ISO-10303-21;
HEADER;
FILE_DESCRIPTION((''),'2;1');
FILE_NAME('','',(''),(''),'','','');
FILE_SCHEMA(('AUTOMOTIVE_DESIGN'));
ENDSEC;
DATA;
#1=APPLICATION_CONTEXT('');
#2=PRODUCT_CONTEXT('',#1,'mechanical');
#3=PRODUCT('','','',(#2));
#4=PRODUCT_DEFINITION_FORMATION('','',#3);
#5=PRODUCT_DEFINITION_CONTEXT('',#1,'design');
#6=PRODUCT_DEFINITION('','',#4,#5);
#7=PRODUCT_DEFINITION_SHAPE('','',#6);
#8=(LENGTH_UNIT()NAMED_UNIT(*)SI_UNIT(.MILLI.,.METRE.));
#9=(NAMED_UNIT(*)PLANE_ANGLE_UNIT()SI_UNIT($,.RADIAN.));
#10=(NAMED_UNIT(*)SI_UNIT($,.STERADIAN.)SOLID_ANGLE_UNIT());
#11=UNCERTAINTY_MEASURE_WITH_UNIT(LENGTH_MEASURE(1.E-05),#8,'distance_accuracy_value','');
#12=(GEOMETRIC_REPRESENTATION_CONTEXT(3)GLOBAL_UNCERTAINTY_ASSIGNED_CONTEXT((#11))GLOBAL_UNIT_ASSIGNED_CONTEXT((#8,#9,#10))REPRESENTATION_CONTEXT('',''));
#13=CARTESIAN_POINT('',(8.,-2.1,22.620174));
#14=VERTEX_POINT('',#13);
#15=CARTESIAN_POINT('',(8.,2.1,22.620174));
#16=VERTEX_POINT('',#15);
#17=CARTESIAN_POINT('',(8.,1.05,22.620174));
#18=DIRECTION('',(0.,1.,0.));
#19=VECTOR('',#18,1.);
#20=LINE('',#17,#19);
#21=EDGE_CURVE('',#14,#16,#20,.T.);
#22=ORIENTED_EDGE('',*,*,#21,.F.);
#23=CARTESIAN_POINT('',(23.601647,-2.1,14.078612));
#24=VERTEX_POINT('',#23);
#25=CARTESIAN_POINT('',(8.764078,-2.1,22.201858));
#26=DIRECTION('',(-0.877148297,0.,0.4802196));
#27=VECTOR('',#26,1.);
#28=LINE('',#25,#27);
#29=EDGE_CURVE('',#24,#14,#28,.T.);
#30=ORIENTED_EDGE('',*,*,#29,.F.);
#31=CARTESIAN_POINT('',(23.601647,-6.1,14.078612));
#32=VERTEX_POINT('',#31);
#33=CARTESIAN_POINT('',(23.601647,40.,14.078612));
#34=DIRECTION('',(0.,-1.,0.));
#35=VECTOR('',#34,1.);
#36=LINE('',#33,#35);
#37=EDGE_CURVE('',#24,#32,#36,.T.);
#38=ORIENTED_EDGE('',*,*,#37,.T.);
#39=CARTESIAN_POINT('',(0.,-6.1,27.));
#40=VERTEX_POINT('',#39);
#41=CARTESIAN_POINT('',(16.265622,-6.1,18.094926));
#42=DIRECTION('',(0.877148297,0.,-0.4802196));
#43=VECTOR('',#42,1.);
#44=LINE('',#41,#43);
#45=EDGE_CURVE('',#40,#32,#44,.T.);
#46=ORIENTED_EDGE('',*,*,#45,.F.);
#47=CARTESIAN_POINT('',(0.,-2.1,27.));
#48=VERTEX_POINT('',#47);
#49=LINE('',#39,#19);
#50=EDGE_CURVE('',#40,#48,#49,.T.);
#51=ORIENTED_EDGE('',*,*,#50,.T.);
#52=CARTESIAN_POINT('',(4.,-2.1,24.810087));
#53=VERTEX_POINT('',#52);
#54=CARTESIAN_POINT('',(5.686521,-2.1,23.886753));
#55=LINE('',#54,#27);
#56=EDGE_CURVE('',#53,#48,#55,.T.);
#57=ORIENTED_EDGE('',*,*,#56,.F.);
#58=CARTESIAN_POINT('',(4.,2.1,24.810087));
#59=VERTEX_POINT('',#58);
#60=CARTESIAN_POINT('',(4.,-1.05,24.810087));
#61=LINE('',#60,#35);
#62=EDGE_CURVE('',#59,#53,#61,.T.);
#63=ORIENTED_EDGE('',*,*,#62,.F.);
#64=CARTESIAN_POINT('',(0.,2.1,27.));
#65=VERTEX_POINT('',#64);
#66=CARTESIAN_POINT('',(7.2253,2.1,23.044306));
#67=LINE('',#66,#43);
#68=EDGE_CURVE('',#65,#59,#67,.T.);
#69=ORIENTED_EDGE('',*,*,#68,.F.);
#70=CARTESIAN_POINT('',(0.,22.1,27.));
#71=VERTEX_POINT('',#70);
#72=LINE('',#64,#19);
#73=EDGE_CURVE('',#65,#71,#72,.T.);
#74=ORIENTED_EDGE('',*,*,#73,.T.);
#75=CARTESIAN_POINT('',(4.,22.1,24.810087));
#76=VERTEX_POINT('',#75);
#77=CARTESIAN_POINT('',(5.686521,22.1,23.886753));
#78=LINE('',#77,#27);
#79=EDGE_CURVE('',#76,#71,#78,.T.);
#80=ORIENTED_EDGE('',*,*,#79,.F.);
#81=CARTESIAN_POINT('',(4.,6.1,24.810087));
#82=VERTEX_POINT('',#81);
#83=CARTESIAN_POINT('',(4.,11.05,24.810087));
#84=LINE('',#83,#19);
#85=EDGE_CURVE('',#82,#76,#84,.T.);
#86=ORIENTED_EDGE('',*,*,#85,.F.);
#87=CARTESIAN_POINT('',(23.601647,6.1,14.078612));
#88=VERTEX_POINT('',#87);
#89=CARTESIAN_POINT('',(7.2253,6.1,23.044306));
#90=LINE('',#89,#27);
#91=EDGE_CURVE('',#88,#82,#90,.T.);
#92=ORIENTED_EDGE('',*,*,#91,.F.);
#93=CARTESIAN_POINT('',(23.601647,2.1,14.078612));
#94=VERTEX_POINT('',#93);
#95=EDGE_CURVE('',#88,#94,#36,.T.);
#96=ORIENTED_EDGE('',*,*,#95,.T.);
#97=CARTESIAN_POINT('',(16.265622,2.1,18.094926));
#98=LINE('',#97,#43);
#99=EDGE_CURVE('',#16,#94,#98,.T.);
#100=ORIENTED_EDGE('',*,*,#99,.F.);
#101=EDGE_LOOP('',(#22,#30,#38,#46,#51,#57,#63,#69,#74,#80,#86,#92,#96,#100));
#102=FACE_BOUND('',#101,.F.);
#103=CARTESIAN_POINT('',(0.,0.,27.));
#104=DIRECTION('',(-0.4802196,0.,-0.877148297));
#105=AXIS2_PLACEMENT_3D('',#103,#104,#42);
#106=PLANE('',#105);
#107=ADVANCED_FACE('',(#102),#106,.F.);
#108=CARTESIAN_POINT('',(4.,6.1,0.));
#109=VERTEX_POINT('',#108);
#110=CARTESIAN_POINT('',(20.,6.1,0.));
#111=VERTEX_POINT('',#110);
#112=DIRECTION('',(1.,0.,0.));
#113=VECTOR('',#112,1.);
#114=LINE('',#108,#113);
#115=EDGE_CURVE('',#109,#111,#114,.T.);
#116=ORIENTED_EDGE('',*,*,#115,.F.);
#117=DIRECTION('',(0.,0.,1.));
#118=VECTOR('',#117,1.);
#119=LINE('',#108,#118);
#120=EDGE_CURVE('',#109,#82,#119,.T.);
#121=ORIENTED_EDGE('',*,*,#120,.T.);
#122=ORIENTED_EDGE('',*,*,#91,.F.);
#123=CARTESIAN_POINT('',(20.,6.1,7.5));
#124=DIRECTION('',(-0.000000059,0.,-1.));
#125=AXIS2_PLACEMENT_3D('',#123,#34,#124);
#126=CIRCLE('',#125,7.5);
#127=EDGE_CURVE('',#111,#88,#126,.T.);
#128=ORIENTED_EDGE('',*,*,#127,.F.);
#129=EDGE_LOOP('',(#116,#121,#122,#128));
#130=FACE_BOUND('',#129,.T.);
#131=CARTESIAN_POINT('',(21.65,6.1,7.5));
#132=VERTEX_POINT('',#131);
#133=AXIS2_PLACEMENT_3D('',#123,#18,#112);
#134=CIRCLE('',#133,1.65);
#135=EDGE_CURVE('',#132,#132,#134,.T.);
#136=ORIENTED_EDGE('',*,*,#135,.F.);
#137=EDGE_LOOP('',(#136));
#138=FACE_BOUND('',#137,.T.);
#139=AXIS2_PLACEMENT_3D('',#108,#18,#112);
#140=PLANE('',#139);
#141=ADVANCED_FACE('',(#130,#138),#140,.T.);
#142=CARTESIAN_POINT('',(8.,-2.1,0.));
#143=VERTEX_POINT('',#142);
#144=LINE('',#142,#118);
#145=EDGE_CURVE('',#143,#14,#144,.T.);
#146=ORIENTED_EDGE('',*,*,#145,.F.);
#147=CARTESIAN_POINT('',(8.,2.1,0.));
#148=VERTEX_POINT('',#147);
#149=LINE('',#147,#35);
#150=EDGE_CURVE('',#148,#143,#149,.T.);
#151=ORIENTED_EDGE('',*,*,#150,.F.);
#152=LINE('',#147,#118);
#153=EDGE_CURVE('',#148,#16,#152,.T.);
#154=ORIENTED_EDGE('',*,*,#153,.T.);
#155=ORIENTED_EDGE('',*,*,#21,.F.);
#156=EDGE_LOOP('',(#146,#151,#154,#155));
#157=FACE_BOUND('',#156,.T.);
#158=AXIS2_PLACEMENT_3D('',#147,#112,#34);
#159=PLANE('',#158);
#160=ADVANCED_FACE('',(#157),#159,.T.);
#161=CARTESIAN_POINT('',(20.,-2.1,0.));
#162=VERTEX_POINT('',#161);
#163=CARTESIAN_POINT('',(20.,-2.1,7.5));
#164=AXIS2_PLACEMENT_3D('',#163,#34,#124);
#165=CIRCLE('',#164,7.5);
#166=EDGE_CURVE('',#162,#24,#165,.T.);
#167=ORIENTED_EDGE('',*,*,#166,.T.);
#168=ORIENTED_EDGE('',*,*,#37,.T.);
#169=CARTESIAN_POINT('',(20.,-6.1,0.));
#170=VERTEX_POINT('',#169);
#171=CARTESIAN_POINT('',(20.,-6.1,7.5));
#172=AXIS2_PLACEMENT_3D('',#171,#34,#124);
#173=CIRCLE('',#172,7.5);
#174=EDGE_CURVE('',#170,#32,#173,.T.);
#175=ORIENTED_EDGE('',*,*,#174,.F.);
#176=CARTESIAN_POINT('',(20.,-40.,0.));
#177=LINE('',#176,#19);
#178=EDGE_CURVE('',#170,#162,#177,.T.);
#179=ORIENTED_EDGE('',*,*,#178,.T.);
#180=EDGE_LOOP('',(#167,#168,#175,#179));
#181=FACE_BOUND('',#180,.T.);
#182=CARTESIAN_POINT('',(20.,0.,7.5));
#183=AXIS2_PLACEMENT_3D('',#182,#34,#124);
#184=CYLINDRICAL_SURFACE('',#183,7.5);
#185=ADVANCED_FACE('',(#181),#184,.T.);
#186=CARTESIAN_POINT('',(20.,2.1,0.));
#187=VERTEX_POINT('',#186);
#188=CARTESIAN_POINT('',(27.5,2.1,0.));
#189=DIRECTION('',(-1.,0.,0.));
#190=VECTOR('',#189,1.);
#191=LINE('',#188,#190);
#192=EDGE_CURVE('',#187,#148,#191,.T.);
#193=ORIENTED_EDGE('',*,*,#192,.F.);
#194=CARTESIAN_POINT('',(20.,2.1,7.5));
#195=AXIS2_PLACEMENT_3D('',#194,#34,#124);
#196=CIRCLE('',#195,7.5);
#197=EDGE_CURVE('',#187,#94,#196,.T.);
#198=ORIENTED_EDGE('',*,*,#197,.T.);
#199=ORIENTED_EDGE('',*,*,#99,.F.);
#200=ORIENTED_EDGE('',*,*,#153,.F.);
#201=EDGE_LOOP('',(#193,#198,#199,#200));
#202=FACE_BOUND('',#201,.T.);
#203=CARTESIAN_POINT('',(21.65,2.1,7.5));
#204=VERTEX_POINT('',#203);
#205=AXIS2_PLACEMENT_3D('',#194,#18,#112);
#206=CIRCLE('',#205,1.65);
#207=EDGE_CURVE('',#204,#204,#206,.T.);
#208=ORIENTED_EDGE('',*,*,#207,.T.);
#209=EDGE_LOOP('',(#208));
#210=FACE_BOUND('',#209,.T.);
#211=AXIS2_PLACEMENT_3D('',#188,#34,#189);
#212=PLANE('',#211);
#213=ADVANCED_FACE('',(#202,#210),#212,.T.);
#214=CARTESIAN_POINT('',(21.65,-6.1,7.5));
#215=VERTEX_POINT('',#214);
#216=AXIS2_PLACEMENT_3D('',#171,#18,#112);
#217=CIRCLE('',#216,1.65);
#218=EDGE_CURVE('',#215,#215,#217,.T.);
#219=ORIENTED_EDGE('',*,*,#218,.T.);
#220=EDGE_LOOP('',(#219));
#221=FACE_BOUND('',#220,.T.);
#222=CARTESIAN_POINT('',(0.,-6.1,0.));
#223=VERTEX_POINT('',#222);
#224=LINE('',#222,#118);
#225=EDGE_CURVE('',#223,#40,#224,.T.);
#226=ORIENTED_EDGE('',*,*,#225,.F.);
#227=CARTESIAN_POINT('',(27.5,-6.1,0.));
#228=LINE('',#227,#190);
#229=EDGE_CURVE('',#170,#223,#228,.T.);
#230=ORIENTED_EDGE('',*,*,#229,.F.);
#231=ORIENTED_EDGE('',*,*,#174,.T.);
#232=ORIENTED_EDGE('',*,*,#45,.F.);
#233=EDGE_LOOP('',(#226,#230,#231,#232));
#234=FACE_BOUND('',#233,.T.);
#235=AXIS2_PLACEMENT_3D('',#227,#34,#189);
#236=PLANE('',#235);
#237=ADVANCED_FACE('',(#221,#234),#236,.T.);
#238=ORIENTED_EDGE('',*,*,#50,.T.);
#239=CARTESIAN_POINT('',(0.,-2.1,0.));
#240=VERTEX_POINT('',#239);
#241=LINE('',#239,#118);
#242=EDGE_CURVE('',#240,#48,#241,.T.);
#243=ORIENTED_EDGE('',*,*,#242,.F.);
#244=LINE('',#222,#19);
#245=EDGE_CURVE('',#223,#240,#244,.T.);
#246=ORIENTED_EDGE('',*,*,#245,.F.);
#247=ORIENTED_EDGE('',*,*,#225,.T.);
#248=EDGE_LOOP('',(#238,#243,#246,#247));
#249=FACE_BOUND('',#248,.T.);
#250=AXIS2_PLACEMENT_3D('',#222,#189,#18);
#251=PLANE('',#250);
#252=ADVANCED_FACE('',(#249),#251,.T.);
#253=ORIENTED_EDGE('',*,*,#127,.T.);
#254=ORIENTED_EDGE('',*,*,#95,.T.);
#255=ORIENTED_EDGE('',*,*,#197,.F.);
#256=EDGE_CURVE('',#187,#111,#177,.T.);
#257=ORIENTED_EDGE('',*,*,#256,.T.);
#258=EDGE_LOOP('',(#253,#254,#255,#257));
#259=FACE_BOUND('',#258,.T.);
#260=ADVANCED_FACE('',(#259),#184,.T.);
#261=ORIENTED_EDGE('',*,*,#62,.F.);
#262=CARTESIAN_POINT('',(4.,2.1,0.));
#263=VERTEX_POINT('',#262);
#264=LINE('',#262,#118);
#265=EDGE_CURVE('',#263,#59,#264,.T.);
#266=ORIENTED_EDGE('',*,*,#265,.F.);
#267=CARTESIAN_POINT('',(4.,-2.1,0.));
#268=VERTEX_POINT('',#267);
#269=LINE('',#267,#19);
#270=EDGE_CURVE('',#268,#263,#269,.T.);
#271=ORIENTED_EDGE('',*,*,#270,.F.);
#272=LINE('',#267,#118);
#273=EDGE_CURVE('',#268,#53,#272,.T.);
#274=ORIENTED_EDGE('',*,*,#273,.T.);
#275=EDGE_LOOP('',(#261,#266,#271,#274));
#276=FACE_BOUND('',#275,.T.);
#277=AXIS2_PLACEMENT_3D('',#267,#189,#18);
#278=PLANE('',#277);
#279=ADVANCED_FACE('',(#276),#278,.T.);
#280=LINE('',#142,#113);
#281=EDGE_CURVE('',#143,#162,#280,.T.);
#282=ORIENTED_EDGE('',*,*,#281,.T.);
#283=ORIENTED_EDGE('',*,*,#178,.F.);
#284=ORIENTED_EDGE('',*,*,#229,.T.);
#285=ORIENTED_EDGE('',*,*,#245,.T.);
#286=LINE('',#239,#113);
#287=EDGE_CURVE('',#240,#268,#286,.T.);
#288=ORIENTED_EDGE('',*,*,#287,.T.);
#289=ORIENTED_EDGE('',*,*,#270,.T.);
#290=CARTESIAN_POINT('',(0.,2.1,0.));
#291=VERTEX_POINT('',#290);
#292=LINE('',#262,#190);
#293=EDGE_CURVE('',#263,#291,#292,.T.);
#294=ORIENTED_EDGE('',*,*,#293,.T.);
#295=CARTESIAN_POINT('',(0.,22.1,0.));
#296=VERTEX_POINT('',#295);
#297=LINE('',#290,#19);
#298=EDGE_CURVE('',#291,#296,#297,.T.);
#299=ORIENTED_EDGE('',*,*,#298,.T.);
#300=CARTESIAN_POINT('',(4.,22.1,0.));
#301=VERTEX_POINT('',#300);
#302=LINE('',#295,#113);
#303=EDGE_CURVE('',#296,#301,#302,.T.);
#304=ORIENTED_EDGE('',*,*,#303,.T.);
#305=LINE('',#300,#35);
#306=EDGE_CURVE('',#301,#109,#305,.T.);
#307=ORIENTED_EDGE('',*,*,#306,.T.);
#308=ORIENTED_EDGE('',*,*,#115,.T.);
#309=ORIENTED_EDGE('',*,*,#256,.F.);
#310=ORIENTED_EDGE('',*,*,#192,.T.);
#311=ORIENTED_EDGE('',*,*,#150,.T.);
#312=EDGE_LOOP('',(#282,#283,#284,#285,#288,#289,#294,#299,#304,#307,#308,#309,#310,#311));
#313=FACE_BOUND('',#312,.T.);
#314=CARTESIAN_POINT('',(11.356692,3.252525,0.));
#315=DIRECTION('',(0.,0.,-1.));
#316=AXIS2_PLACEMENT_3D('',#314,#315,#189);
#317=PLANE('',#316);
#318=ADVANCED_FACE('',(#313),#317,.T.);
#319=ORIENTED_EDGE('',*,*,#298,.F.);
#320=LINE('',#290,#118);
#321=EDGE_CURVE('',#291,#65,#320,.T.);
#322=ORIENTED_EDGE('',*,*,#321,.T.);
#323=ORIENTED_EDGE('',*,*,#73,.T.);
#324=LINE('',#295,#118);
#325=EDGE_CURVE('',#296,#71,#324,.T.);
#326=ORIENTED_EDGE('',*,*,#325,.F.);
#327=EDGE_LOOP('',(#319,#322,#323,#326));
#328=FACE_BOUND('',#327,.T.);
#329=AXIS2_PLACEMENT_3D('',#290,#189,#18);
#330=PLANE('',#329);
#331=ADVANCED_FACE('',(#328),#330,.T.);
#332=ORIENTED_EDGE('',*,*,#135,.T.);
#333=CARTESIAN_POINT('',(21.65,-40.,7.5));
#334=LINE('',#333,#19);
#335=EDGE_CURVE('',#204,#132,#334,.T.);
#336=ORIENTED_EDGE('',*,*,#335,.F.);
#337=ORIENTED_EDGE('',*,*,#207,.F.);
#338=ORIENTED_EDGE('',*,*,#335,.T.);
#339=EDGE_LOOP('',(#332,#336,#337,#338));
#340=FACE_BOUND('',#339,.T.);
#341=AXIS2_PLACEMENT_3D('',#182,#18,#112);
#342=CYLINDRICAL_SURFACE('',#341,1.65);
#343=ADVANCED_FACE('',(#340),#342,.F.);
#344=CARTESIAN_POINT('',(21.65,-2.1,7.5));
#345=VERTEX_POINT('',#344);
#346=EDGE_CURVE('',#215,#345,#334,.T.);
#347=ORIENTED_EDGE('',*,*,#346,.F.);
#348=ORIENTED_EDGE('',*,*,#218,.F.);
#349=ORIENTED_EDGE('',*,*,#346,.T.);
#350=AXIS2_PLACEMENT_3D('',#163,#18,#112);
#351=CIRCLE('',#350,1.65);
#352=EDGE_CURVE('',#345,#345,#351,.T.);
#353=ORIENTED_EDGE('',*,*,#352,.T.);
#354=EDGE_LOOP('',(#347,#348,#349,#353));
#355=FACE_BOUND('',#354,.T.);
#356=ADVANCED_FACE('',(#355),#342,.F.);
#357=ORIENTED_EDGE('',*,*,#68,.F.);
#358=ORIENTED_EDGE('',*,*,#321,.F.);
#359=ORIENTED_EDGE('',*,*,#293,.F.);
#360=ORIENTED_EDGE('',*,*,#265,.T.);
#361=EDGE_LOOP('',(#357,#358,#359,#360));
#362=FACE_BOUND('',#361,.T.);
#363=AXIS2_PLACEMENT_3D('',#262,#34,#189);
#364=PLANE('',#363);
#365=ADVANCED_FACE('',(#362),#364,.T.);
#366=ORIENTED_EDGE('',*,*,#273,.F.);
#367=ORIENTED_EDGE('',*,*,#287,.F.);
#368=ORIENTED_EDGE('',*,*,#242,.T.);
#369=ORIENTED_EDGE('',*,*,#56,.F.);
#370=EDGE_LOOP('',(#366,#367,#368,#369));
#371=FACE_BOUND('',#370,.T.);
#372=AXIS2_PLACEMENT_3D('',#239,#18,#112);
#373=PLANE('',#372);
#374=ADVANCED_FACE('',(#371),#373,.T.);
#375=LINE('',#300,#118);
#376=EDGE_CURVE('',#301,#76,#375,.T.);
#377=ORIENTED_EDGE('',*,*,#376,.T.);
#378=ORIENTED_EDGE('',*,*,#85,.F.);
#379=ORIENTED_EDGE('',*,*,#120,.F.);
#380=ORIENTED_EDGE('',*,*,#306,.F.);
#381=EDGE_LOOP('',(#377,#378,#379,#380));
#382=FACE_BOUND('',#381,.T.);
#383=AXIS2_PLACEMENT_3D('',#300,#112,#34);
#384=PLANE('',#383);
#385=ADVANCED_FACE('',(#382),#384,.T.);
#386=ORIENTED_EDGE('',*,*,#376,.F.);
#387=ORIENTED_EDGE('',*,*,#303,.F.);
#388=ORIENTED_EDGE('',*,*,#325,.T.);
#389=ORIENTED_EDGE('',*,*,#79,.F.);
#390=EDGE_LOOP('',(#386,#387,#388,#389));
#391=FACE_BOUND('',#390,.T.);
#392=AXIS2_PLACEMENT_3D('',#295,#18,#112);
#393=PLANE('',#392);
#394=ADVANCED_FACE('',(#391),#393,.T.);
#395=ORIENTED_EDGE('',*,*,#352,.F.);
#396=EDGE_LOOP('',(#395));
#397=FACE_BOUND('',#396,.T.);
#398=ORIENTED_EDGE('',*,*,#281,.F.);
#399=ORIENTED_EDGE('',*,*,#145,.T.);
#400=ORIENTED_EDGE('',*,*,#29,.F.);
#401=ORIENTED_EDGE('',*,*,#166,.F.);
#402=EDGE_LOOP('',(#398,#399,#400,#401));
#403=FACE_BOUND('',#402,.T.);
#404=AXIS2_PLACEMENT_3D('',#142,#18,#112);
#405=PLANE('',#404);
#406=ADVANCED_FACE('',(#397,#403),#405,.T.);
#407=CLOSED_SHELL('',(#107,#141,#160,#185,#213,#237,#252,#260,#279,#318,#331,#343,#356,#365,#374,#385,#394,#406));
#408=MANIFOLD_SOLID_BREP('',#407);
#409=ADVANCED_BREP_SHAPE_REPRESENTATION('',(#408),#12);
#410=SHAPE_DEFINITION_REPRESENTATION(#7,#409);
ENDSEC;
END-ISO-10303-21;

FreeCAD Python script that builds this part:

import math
import FreeCAD as App
import Part
import Sketcher
from FreeCAD import Vector


def add_polygon(sketch, points):
    """Adds a closed chain of lines whose ends are joined by coincident constraints."""
    first, n = sketch.GeometryCount, len(points)
    for a, b in zip(points, points[1:] + points[:1]):
        sketch.addGeometry(Part.LineSegment(App.Vector(*a, 0), App.Vector(*b, 0)), False)
    for i in range(n):
        sketch.addConstraint(Sketcher.Constraint("Coincident", first + i, 2, first + (i + 1) % n, 1))

doc = App.newDocument("Part")
body = doc.addObject("PartDesign::Body", "Body")

# Sketch on XZ plane
sketch1 = body.newObject("Sketcher::SketchObject", "Sketch")
sketch1.AttachmentSupport = (doc.getObject("XZ_Plane"), [""])
sketch1.MapMode = "FlatFace"
sketch1.addGeometry(Part.ArcOfCircle(Part.Circle(Vector(20, 7.5, 0), Vector(0, 0, 1), 7.5), math.radians(-90), math.radians(61)), False)
sketch1.addGeometry(Part.LineSegment(Vector(23.6, 14.1, 0), Vector(0, 27, 0)), False)
sketch1.addGeometry(Part.LineSegment(Vector(0, 27, 0), Vector(0, 0, 0)), False)
sketch1.addGeometry(Part.LineSegment(Vector(0, 0, 0), Vector(20, 0, 0)), False)
sketch1.addGeometry(Part.Circle(Vector(20, 7.5, 0), Vector(0, 0, 1), 1.6), False)
sketch1.addConstraint(Sketcher.Constraint("Tangent", 0, 2, 1, 1))
sketch1.addConstraint(Sketcher.Constraint("Coincident", 1, 2, 2, 1))
sketch1.addConstraint(Sketcher.Constraint("Coincident", 2, 2, 3, 1))
sketch1.addConstraint(Sketcher.Constraint("Tangent", 3, 2, 0, 1))
sketch1.addConstraint(Sketcher.Constraint("Vertical", 2))
sketch1.addConstraint(Sketcher.Constraint("Horizontal", 3))
sketch1.addConstraint(Sketcher.Constraint("Coincident", 2, 2, -1, 1))
sketch1.addConstraint(Sketcher.Constraint("Coincident", 4, 3, 0, 3))
sketch1.addConstraint(Sketcher.Constraint("Diameter", 4, 3.3))
sketch1.addConstraint(Sketcher.Constraint("Radius", 0, 7.5))
sketch1.addConstraint(Sketcher.Constraint("DistanceX", 3, 1, 3, 2, 20.0))
sketch1.addConstraint(Sketcher.Constraint("DistanceY", 2, 2, 2, 1, 27.0))
pad1 = body.newObject("PartDesign::Pad", "Pad")
pad1.Profile = sketch1
pad1.Length = 80
pad1.Midplane = True
body2 = doc.addObject("PartDesign::Body", "Body001")

# Sketch on XY plane
sketch2 = body2.newObject("Sketcher::SketchObject", "Sketch001")
sketch2.AttachmentSupport = (doc.getObject("XY_Plane001"), [""])
sketch2.MapMode = "FlatFace"
add_polygon(sketch2, [(4, 22.1), (0, 22.1), (0, 2.1), (4, 2.1), (4, -2.1), (0, -2.1), (0, -6.1), (27.5, -6.1), (27.5, -2.1), (8, -2.1), (8, 2.1), (27.5, 2.1), (27.5, 6.1), (4, 6.1)])  # lines 0-13
sketch2.addConstraint(Sketcher.Constraint("Horizontal", 0))
sketch2.addConstraint(Sketcher.Constraint("Vertical", 1))
sketch2.addConstraint(Sketcher.Constraint("Horizontal", 2))
sketch2.addConstraint(Sketcher.Constraint("Vertical", 3))
sketch2.addConstraint(Sketcher.Constraint("Horizontal", 4))
sketch2.addConstraint(Sketcher.Constraint("Vertical", 5))
sketch2.addConstraint(Sketcher.Constraint("Horizontal", 6))
sketch2.addConstraint(Sketcher.Constraint("Vertical", 7))
sketch2.addConstraint(Sketcher.Constraint("Horizontal", 8))
sketch2.addConstraint(Sketcher.Constraint("Vertical", 9))
sketch2.addConstraint(Sketcher.Constraint("Horizontal", 10))
sketch2.addConstraint(Sketcher.Constraint("Vertical", 11))
sketch2.addConstraint(Sketcher.Constraint("Horizontal", 12))
sketch2.addConstraint(Sketcher.Constraint("Vertical", 13))
sketch2.addConstraint(Sketcher.Constraint("Symmetric", 1, 2, 4, 2, -1, 1))
sketch2.addConstraint(Sketcher.Constraint("Symmetric", 7, 2, 10, 2, -1))
sketch2.addConstraint(Sketcher.Constraint("PointOnObject", 0, 2, -2))
sketch2.addConstraint(Sketcher.Constraint("Horizontal", 4, 2, 7, 2))
sketch2.addConstraint(Sketcher.Constraint("Vertical", 3, 2, 12, 2))
sketch2.addConstraint(Sketcher.Constraint("Equal", 4, 5))
sketch2.addConstraint(Sketcher.Constraint("Equal", 7, 11))
sketch2.addConstraint(Sketcher.Constraint("DistanceX", 0, 2, 0, 1, 4.0))
sketch2.addConstraint(Sketcher.Constraint("DistanceY", 1, 2, 1, 1, 20.0))
sketch2.addConstraint(Sketcher.Constraint("DistanceX", 6, 1, 6, 2, 27.5))
sketch2.addConstraint(Sketcher.Constraint("DistanceX", 8, 2, 8, 1, 19.5))
sketch2.addConstraint(Sketcher.Constraint("DistanceY", 3, 2, 3, 1, 4.2))
pad2 = body2.newObject("PartDesign::Pad", "Pad001")
pad2.Profile = sketch2
pad2.Length = 27
doc.recompute()

boolean = body2.newObject("PartDesign::Boolean", "Boolean")
boolean.Type = "Common"
boolean.addObjects([body])

doc.recompute()
